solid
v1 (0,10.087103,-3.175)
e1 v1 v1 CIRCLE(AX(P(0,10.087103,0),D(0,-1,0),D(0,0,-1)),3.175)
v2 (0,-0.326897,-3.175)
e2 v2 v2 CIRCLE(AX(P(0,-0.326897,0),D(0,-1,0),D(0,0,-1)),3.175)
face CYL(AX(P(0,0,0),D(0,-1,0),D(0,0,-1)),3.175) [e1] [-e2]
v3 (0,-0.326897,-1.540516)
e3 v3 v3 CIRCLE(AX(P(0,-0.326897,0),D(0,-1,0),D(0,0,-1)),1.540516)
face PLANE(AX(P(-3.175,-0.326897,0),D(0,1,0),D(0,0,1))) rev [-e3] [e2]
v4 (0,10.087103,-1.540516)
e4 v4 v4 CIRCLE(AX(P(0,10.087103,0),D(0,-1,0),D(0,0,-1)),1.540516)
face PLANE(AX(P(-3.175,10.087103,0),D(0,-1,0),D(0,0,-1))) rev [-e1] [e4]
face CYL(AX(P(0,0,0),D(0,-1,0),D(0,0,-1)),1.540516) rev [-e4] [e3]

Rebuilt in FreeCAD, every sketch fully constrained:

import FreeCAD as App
import Part
import Sketcher
Q = App.Units.Quantity

doc = App.newDocument("Part")
body = doc.addObject("PartDesign::Body", "Body")

# Sketch on XY plane
sketch1 = body.newObject("Sketcher::SketchObject", "Sketch")
sketch1.AttachmentSupport = (doc.getObject("XY_Plane"), [""])
sketch1.MapMode = "FlatFace"
sketch1.addGeometry([
    Part.LineSegment(App.Vector(-3.2, 10.1, 0), App.Vector(-3.2, -0.3, 0)),
    Part.LineSegment(App.Vector(-3.2, -0.3, 0), App.Vector(-1.5, -0.3, 0)),
    Part.LineSegment(App.Vector(-1.5, -0.3, 0), App.Vector(-1.5, 10.1, 0)),
    Part.LineSegment(App.Vector(-1.5, 10.1, 0), App.Vector(-3.2, 10.1, 0)),
], False)
sketch1.addConstraint([
    Sketcher.Constraint("Coincident", 0, 2, 1, 1),
    Sketcher.Constraint("Coincident", 1, 2, 2, 1),
    Sketcher.Constraint("Coincident", 2, 2, 3, 1),
    Sketcher.Constraint("Coincident", 3, 2, 0, 1),
    Sketcher.Constraint("Vertical", 0),
    Sketcher.Constraint("Horizontal", 1),
    Sketcher.Constraint("Vertical", 2),
    Sketcher.Constraint("Horizontal", 3),
    Sketcher.Constraint("DistanceY", 0, 2, 0, 1, Q("0.41 in")),
    Sketcher.Constraint("DistanceX", 0, 2, -1, 1, Q("0.125 in")),
    Sketcher.Constraint("DistanceX", 1, 1, 1, 2, 1.634484),
    Sketcher.Constraint("DistanceY", 0, 2, -1, 1, 0.326897),
])
revolution = body.newObject("PartDesign::Revolution", "Revolution")
revolution.Profile = sketch1
revolution.ReferenceAxis = (sketch1, ["V_Axis"])
revolution.Angle = 360

doc.recompute()
